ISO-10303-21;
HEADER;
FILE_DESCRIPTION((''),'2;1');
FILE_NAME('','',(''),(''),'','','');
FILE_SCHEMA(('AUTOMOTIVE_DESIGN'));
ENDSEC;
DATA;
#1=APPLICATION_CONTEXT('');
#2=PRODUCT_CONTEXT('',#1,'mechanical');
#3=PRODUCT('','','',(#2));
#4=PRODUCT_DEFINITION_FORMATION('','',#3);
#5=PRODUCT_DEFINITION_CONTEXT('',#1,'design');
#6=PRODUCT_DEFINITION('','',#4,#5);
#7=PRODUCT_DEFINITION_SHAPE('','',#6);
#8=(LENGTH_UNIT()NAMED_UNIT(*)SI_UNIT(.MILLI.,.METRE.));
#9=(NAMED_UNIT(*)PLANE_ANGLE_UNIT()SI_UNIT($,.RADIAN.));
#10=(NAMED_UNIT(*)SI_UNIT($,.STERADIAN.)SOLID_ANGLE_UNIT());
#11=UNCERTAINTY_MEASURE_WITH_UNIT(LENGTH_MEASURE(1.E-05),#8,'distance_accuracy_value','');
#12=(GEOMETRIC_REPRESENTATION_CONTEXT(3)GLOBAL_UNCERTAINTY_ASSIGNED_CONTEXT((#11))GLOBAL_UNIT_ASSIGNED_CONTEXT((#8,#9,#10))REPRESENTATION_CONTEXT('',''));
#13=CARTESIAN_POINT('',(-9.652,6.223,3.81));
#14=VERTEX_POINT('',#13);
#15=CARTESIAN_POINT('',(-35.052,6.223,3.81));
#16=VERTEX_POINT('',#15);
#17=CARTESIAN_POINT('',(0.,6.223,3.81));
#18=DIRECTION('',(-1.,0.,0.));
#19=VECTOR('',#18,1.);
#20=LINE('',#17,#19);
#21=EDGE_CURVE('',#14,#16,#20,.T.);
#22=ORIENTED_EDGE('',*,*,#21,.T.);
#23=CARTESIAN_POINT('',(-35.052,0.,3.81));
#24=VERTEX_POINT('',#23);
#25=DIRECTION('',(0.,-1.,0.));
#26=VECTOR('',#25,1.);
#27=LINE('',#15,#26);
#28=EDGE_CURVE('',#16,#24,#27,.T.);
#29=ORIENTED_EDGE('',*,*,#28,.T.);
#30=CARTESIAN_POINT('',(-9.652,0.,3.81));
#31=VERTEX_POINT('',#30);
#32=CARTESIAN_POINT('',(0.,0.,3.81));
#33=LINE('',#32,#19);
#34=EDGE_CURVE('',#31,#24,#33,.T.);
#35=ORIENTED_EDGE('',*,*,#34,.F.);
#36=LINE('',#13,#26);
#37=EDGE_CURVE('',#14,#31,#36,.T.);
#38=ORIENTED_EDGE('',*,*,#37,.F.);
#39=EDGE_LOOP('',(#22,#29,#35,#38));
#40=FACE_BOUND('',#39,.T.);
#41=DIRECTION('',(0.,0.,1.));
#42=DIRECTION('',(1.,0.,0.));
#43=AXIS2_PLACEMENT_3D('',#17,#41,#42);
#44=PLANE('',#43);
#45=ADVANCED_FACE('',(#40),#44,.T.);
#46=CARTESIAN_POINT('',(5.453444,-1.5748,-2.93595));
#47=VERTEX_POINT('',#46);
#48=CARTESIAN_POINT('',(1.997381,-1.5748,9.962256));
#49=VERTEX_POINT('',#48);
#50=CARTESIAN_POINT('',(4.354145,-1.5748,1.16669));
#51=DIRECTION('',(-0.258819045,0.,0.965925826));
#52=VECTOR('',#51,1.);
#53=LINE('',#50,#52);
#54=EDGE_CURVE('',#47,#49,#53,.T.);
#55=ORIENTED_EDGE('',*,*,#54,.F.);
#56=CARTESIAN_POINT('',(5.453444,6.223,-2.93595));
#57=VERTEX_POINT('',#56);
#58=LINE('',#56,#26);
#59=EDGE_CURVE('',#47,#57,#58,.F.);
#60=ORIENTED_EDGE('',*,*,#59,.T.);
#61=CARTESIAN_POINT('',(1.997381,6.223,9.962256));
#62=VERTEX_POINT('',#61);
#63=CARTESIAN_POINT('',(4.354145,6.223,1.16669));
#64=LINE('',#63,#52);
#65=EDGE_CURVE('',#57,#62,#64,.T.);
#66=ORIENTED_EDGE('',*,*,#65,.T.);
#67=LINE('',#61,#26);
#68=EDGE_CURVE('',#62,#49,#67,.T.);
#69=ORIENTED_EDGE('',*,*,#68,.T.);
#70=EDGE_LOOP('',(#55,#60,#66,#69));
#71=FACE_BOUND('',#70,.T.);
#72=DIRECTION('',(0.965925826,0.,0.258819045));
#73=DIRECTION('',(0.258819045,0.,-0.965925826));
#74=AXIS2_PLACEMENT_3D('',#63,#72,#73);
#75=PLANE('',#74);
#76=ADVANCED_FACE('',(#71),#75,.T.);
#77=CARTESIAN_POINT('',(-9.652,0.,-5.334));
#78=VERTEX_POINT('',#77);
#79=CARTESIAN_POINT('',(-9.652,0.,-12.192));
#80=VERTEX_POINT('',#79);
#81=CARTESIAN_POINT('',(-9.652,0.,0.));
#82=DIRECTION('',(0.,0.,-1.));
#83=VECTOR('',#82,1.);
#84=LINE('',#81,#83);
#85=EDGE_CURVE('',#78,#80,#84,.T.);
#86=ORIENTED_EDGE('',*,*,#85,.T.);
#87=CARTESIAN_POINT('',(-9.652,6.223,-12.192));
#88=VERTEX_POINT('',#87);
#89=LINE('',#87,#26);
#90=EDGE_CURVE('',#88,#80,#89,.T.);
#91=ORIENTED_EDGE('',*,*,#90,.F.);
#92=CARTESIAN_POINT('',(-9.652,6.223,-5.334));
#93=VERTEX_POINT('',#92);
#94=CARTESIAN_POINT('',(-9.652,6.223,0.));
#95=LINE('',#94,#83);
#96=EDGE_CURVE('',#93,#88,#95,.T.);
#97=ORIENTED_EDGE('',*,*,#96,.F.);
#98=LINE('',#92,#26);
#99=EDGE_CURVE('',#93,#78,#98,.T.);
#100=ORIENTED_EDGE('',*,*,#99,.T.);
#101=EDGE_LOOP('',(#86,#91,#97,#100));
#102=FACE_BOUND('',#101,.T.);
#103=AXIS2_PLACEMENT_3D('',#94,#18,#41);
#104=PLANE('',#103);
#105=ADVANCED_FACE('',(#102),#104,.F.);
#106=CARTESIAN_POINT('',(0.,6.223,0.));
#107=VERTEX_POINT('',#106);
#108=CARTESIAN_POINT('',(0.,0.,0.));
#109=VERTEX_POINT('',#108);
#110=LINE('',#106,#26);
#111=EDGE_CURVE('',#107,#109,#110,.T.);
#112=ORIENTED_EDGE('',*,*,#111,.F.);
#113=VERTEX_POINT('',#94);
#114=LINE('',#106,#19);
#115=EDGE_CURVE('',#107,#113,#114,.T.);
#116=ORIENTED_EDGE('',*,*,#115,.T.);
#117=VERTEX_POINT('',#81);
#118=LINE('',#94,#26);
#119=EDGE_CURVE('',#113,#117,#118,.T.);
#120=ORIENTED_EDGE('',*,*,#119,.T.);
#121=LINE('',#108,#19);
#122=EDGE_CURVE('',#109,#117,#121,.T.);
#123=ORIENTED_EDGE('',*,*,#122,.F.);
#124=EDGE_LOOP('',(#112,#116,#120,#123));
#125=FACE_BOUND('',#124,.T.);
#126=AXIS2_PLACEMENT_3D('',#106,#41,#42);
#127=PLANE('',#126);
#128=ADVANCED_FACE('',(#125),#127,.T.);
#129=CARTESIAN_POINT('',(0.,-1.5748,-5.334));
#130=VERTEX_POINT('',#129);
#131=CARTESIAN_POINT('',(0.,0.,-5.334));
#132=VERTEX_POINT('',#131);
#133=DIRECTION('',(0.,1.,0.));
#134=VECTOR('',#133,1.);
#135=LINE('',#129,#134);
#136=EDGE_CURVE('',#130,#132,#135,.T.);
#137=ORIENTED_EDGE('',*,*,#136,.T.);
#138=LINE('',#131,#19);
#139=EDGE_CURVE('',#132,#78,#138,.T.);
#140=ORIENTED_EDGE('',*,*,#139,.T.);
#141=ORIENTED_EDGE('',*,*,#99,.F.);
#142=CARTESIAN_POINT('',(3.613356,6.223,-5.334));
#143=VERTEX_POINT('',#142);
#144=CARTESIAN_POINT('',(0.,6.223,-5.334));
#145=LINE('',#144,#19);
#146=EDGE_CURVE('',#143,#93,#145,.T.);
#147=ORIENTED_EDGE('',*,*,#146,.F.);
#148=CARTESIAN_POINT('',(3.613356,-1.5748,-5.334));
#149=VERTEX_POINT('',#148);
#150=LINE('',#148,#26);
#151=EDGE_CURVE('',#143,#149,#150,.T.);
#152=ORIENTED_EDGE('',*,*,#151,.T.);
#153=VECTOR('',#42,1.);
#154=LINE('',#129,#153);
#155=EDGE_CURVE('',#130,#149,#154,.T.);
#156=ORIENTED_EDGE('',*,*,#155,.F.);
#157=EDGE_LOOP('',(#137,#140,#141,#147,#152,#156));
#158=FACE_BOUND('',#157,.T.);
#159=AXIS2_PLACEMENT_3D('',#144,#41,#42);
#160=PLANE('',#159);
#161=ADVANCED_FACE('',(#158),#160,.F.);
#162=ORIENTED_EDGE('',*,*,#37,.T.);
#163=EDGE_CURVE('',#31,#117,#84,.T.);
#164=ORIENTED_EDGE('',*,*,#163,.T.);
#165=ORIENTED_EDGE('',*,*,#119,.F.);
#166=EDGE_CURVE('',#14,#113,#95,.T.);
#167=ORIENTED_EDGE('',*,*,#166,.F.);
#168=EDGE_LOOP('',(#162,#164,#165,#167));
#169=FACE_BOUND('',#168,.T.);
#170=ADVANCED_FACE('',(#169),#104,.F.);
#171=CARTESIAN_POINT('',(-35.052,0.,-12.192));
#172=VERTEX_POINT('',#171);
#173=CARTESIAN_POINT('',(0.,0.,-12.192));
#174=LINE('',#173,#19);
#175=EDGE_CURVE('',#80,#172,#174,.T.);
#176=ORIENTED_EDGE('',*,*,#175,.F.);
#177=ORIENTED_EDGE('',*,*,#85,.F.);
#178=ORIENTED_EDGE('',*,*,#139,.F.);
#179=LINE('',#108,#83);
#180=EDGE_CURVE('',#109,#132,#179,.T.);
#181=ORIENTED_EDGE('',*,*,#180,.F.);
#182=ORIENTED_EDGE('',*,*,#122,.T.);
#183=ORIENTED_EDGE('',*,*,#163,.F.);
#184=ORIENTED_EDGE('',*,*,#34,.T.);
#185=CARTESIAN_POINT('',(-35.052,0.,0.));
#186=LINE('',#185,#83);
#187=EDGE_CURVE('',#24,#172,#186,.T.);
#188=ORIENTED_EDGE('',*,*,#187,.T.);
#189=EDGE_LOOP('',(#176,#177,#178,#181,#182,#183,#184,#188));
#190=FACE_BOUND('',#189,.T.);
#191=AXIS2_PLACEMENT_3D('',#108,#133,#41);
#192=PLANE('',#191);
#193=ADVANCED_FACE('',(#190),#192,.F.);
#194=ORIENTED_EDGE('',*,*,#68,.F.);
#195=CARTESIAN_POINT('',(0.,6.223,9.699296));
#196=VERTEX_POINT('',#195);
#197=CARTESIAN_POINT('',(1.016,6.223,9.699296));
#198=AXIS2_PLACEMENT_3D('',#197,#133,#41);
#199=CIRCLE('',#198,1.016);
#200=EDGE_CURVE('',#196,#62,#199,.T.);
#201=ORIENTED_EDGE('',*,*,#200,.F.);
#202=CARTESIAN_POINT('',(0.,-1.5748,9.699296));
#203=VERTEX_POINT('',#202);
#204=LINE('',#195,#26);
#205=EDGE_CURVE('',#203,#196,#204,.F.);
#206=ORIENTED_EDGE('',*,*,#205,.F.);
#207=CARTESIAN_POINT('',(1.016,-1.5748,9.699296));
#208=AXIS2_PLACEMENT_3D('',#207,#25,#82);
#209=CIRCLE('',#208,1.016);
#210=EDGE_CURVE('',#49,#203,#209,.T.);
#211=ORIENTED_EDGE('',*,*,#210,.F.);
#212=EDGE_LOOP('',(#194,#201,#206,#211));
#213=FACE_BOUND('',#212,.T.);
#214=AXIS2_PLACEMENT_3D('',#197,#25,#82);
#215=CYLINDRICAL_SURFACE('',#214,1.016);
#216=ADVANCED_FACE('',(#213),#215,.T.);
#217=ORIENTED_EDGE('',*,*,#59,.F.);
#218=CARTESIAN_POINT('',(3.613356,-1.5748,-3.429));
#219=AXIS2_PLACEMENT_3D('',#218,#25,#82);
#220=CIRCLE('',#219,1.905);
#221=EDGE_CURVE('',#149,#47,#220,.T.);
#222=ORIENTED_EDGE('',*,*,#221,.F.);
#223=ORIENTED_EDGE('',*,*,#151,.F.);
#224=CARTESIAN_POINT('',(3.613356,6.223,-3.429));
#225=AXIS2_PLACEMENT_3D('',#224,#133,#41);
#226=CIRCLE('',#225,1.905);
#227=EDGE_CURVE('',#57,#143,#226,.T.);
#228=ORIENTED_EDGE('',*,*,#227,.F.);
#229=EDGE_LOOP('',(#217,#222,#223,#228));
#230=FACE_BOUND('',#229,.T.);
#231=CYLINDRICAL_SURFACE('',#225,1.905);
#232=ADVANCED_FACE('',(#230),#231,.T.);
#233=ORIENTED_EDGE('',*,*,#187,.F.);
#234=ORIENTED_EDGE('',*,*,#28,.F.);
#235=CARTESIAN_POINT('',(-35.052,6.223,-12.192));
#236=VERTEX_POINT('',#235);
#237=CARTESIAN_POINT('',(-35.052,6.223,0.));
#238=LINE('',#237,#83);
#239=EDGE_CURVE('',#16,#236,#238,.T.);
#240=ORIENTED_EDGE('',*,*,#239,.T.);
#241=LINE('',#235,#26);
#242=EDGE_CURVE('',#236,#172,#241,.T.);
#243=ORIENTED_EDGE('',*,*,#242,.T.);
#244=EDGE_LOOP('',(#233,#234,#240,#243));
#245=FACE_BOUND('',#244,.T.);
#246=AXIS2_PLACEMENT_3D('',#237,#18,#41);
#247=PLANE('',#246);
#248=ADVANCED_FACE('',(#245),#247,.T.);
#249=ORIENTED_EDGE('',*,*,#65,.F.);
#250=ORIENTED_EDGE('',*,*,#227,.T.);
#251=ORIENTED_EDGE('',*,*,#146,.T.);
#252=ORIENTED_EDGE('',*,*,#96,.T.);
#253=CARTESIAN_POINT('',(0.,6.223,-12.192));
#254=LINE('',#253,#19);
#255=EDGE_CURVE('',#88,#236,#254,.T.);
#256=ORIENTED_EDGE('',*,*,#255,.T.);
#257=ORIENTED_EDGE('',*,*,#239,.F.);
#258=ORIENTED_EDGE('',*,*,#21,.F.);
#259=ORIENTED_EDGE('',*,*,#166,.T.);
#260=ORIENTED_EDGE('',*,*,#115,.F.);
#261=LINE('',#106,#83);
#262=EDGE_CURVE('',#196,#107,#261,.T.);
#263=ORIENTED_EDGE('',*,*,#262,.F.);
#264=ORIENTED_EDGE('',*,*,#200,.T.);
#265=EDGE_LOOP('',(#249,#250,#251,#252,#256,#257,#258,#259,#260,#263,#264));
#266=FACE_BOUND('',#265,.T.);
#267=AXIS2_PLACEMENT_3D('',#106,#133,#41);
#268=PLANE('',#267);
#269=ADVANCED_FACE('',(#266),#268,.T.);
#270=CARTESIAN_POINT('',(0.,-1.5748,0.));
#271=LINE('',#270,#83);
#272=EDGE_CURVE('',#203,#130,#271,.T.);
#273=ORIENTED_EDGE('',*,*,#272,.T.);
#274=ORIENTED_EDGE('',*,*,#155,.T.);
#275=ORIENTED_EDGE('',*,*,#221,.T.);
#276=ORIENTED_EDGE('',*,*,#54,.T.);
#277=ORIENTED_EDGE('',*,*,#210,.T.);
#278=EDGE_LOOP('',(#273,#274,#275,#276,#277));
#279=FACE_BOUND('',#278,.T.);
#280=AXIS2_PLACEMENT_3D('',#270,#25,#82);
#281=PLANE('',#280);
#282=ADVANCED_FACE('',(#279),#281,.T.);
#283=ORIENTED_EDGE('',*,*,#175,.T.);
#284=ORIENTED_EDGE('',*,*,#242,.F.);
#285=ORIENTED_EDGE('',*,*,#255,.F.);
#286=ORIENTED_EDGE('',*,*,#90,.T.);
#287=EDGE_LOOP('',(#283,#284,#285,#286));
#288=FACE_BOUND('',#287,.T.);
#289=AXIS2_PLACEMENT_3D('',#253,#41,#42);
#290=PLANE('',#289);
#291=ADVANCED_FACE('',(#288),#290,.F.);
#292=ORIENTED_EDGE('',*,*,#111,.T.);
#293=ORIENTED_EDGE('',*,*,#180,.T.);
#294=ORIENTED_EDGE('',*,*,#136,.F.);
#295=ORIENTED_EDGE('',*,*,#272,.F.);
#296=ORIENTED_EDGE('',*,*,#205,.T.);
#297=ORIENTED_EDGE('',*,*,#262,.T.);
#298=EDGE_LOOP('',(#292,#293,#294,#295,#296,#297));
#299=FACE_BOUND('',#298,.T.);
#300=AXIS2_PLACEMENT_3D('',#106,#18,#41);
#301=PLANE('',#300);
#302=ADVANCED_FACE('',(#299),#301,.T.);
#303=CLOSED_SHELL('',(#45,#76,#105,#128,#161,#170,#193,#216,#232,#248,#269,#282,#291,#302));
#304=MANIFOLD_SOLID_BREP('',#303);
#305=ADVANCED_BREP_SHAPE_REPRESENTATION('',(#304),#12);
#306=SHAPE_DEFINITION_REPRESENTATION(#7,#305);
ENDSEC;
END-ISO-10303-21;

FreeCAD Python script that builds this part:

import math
import FreeCAD as App
import Part
import Sketcher

V = App.Vector
Q = App.Units.Quantity


def edges_at(feature, points):
    """Names of the edges that pass closest to the given points."""
    edges = feature.Shape.Edges
    near = lambda p: min(range(len(edges)), key=lambda i: edges[i].distToShape(Part.Vertex(*p))[0])
    return sorted({f"Edge{near(p) + 1}" for p in points})

doc = App.newDocument("Part")
body = doc.addObject("PartDesign::Body", "Body")

# Sketch on XZ plane
sketch1 = doc.addObject("Sketcher::SketchObject", "Sketch")
body.addObject(sketch1)
sketch1.AttachmentSupport = (doc.XZ_Plane, [""])
sketch1.MapMode = "FlatFace"
sketch1.addGeometry([
    Part.LineSegment(V(-9.7, -12.2, 0), V(-35.1, -12.2, 0)),  # 0
    Part.LineSegment(V(-35.1, -12.2, 0), V(-35.1, 3.8, 0)),  # 1
    Part.LineSegment(V(-35.1, 3.8, 0), V(-9.7, 3.8, 0)),  # 2
    Part.LineSegment(V(-9.7, 3.8, 0), V(-9.7, 0, 0)),  # 3
    Part.LineSegment(V(-9.7, 0, 0), V(0, 0, 0)),  # 4
    Part.LineSegment(V(0, 0, 0), V(0, 17.4, 0)),  # 5
    Part.LineSegment(V(0, 17.4, 0), V(6.1, -5.3, 0)),  # 6
    Part.LineSegment(V(6.1, -5.3, 0), V(-9.7, -5.3, 0)),  # 7
    Part.LineSegment(V(-9.7, -5.3, 0), V(-9.7, -12.2, 0)),  # 8
], False)
sketch1.addConstraint([
    Sketcher.Constraint("Coincident", 0, 2, 1, 1),
    Sketcher.Constraint("Coincident", 1, 2, 2, 1),
    Sketcher.Constraint("Coincident", 2, 2, 3, 1),
    Sketcher.Constraint("Coincident", 3, 2, 4, 1),
    Sketcher.Constraint("Coincident", 4, 2, 5, 1),
    Sketcher.Constraint("Coincident", 5, 2, 6, 1),
    Sketcher.Constraint("Coincident", 6, 2, 7, 1),
    Sketcher.Constraint("Coincident", 7, 2, 8, 1),
    Sketcher.Constraint("Coincident", 8, 2, 0, 1),
    Sketcher.Constraint("Horizontal", 0),
    Sketcher.Constraint("Vertical", 1),
    Sketcher.Constraint("Horizontal", 2),
    Sketcher.Constraint("Vertical", 3),
    Sketcher.Constraint("Horizontal", 4),
    Sketcher.Constraint("Vertical", 5),
    Sketcher.Constraint("Horizontal", 7),
    Sketcher.Constraint("Vertical", 8),
    Sketcher.Constraint("Coincident", 4, 2, -1, 1),
    Sketcher.Constraint("Vertical", 3, 2, 7, 2),
    Sketcher.Constraint("DistanceX", 0, 2, 0, 1, Q("1 in")),
    Sketcher.Constraint("Angle", 6, Q("-75 deg")),
    Sketcher.Constraint("DistanceX", 4, 1, 4, 2, Q("0.38 in")),
    Sketcher.Constraint("DistanceX", 7, 2, 7, 1, Q("0.62 in")),
    Sketcher.Constraint("DistanceY", 1, 1, 1, 2, Q("0.63 in")),
    Sketcher.Constraint("DistanceY", 3, 2, 3, 1, Q("0.15 in")),
    Sketcher.Constraint("DistanceY", 8, 2, 8, 1, Q("0.27 in")),
])
pad1 = doc.addObject("PartDesign::Pad", "Pad")
body.addObject(pad1)
pad1.Profile = sketch1
pad1.Length = Q("0.245 in")
pad1.Reversed = True
doc.recompute()

fillet = doc.addObject("PartDesign::Fillet", "Fillet")
body.addObject(fillet)
fillet.Base = (pad1, edges_at(pad1, [(0, 3.111, 17.417)]))
fillet.Radius = Q("0.04 in")

# Sketch on XZ plane
sketch2 = doc.addObject("Sketcher::SketchObject", "Sketch001")
body.addObject(sketch2)
sketch2.AttachmentSupport = (doc.XZ_Plane, [""])
sketch2.MapMode = "FlatFace"
sketch2.addGeometry([
    Part.LineSegment(V(0, 9.7, 0), V(0, -5.3, 0)),
    Part.LineSegment(V(0, -5.3, 0), V(6.1, -5.3, 0)),
    Part.LineSegment(V(6.1, -5.3, 0), V(2, 10, 0)),
    Part.ArcOfCircle(Part.Circle(V(1, 9.7, 0), V(0, 0, 1), 1), math.radians(15), math.radians(180)),
], False)
sketch2.addConstraint([
    Sketcher.Constraint("Coincident", 0, 2, 1, 1),
    Sketcher.Constraint("Coincident", 1, 2, 2, 1),
    Sketcher.Constraint("Tangent", 2, 2, 3, 1),
    Sketcher.Constraint("Tangent", 3, 2, 0, 1),
    Sketcher.Constraint("Vertical", 0),
    Sketcher.Constraint("Horizontal", 1),
    Sketcher.Constraint("PointOnObject", 0, 2, -2),
    Sketcher.Constraint("Radius", 3, Q("0.04 in")),
    Sketcher.Constraint("Angle", 2, Q("105 deg")),
    Sketcher.Constraint("DistanceX", 1, 1, 1, 2, Q("0.24 in")),
    Sketcher.Constraint("DistanceY", 0, 2, -1, 1, Q("0.21 in")),
])
pad2 = doc.addObject("PartDesign::Pad", "Pad001")
body.addObject(pad2)
pad2.Profile = sketch2
pad2.Length = Q("0.062 in")
doc.recompute()

fillet2 = doc.addObject("PartDesign::Fillet", "Fillet001")
body.addObject(fillet2)
fillet2.Base = (pad2, edges_at(pad2, [(6.096, 3.111, -5.334)]))
fillet2.Radius = Q("0.075 in")

doc.recompute()
